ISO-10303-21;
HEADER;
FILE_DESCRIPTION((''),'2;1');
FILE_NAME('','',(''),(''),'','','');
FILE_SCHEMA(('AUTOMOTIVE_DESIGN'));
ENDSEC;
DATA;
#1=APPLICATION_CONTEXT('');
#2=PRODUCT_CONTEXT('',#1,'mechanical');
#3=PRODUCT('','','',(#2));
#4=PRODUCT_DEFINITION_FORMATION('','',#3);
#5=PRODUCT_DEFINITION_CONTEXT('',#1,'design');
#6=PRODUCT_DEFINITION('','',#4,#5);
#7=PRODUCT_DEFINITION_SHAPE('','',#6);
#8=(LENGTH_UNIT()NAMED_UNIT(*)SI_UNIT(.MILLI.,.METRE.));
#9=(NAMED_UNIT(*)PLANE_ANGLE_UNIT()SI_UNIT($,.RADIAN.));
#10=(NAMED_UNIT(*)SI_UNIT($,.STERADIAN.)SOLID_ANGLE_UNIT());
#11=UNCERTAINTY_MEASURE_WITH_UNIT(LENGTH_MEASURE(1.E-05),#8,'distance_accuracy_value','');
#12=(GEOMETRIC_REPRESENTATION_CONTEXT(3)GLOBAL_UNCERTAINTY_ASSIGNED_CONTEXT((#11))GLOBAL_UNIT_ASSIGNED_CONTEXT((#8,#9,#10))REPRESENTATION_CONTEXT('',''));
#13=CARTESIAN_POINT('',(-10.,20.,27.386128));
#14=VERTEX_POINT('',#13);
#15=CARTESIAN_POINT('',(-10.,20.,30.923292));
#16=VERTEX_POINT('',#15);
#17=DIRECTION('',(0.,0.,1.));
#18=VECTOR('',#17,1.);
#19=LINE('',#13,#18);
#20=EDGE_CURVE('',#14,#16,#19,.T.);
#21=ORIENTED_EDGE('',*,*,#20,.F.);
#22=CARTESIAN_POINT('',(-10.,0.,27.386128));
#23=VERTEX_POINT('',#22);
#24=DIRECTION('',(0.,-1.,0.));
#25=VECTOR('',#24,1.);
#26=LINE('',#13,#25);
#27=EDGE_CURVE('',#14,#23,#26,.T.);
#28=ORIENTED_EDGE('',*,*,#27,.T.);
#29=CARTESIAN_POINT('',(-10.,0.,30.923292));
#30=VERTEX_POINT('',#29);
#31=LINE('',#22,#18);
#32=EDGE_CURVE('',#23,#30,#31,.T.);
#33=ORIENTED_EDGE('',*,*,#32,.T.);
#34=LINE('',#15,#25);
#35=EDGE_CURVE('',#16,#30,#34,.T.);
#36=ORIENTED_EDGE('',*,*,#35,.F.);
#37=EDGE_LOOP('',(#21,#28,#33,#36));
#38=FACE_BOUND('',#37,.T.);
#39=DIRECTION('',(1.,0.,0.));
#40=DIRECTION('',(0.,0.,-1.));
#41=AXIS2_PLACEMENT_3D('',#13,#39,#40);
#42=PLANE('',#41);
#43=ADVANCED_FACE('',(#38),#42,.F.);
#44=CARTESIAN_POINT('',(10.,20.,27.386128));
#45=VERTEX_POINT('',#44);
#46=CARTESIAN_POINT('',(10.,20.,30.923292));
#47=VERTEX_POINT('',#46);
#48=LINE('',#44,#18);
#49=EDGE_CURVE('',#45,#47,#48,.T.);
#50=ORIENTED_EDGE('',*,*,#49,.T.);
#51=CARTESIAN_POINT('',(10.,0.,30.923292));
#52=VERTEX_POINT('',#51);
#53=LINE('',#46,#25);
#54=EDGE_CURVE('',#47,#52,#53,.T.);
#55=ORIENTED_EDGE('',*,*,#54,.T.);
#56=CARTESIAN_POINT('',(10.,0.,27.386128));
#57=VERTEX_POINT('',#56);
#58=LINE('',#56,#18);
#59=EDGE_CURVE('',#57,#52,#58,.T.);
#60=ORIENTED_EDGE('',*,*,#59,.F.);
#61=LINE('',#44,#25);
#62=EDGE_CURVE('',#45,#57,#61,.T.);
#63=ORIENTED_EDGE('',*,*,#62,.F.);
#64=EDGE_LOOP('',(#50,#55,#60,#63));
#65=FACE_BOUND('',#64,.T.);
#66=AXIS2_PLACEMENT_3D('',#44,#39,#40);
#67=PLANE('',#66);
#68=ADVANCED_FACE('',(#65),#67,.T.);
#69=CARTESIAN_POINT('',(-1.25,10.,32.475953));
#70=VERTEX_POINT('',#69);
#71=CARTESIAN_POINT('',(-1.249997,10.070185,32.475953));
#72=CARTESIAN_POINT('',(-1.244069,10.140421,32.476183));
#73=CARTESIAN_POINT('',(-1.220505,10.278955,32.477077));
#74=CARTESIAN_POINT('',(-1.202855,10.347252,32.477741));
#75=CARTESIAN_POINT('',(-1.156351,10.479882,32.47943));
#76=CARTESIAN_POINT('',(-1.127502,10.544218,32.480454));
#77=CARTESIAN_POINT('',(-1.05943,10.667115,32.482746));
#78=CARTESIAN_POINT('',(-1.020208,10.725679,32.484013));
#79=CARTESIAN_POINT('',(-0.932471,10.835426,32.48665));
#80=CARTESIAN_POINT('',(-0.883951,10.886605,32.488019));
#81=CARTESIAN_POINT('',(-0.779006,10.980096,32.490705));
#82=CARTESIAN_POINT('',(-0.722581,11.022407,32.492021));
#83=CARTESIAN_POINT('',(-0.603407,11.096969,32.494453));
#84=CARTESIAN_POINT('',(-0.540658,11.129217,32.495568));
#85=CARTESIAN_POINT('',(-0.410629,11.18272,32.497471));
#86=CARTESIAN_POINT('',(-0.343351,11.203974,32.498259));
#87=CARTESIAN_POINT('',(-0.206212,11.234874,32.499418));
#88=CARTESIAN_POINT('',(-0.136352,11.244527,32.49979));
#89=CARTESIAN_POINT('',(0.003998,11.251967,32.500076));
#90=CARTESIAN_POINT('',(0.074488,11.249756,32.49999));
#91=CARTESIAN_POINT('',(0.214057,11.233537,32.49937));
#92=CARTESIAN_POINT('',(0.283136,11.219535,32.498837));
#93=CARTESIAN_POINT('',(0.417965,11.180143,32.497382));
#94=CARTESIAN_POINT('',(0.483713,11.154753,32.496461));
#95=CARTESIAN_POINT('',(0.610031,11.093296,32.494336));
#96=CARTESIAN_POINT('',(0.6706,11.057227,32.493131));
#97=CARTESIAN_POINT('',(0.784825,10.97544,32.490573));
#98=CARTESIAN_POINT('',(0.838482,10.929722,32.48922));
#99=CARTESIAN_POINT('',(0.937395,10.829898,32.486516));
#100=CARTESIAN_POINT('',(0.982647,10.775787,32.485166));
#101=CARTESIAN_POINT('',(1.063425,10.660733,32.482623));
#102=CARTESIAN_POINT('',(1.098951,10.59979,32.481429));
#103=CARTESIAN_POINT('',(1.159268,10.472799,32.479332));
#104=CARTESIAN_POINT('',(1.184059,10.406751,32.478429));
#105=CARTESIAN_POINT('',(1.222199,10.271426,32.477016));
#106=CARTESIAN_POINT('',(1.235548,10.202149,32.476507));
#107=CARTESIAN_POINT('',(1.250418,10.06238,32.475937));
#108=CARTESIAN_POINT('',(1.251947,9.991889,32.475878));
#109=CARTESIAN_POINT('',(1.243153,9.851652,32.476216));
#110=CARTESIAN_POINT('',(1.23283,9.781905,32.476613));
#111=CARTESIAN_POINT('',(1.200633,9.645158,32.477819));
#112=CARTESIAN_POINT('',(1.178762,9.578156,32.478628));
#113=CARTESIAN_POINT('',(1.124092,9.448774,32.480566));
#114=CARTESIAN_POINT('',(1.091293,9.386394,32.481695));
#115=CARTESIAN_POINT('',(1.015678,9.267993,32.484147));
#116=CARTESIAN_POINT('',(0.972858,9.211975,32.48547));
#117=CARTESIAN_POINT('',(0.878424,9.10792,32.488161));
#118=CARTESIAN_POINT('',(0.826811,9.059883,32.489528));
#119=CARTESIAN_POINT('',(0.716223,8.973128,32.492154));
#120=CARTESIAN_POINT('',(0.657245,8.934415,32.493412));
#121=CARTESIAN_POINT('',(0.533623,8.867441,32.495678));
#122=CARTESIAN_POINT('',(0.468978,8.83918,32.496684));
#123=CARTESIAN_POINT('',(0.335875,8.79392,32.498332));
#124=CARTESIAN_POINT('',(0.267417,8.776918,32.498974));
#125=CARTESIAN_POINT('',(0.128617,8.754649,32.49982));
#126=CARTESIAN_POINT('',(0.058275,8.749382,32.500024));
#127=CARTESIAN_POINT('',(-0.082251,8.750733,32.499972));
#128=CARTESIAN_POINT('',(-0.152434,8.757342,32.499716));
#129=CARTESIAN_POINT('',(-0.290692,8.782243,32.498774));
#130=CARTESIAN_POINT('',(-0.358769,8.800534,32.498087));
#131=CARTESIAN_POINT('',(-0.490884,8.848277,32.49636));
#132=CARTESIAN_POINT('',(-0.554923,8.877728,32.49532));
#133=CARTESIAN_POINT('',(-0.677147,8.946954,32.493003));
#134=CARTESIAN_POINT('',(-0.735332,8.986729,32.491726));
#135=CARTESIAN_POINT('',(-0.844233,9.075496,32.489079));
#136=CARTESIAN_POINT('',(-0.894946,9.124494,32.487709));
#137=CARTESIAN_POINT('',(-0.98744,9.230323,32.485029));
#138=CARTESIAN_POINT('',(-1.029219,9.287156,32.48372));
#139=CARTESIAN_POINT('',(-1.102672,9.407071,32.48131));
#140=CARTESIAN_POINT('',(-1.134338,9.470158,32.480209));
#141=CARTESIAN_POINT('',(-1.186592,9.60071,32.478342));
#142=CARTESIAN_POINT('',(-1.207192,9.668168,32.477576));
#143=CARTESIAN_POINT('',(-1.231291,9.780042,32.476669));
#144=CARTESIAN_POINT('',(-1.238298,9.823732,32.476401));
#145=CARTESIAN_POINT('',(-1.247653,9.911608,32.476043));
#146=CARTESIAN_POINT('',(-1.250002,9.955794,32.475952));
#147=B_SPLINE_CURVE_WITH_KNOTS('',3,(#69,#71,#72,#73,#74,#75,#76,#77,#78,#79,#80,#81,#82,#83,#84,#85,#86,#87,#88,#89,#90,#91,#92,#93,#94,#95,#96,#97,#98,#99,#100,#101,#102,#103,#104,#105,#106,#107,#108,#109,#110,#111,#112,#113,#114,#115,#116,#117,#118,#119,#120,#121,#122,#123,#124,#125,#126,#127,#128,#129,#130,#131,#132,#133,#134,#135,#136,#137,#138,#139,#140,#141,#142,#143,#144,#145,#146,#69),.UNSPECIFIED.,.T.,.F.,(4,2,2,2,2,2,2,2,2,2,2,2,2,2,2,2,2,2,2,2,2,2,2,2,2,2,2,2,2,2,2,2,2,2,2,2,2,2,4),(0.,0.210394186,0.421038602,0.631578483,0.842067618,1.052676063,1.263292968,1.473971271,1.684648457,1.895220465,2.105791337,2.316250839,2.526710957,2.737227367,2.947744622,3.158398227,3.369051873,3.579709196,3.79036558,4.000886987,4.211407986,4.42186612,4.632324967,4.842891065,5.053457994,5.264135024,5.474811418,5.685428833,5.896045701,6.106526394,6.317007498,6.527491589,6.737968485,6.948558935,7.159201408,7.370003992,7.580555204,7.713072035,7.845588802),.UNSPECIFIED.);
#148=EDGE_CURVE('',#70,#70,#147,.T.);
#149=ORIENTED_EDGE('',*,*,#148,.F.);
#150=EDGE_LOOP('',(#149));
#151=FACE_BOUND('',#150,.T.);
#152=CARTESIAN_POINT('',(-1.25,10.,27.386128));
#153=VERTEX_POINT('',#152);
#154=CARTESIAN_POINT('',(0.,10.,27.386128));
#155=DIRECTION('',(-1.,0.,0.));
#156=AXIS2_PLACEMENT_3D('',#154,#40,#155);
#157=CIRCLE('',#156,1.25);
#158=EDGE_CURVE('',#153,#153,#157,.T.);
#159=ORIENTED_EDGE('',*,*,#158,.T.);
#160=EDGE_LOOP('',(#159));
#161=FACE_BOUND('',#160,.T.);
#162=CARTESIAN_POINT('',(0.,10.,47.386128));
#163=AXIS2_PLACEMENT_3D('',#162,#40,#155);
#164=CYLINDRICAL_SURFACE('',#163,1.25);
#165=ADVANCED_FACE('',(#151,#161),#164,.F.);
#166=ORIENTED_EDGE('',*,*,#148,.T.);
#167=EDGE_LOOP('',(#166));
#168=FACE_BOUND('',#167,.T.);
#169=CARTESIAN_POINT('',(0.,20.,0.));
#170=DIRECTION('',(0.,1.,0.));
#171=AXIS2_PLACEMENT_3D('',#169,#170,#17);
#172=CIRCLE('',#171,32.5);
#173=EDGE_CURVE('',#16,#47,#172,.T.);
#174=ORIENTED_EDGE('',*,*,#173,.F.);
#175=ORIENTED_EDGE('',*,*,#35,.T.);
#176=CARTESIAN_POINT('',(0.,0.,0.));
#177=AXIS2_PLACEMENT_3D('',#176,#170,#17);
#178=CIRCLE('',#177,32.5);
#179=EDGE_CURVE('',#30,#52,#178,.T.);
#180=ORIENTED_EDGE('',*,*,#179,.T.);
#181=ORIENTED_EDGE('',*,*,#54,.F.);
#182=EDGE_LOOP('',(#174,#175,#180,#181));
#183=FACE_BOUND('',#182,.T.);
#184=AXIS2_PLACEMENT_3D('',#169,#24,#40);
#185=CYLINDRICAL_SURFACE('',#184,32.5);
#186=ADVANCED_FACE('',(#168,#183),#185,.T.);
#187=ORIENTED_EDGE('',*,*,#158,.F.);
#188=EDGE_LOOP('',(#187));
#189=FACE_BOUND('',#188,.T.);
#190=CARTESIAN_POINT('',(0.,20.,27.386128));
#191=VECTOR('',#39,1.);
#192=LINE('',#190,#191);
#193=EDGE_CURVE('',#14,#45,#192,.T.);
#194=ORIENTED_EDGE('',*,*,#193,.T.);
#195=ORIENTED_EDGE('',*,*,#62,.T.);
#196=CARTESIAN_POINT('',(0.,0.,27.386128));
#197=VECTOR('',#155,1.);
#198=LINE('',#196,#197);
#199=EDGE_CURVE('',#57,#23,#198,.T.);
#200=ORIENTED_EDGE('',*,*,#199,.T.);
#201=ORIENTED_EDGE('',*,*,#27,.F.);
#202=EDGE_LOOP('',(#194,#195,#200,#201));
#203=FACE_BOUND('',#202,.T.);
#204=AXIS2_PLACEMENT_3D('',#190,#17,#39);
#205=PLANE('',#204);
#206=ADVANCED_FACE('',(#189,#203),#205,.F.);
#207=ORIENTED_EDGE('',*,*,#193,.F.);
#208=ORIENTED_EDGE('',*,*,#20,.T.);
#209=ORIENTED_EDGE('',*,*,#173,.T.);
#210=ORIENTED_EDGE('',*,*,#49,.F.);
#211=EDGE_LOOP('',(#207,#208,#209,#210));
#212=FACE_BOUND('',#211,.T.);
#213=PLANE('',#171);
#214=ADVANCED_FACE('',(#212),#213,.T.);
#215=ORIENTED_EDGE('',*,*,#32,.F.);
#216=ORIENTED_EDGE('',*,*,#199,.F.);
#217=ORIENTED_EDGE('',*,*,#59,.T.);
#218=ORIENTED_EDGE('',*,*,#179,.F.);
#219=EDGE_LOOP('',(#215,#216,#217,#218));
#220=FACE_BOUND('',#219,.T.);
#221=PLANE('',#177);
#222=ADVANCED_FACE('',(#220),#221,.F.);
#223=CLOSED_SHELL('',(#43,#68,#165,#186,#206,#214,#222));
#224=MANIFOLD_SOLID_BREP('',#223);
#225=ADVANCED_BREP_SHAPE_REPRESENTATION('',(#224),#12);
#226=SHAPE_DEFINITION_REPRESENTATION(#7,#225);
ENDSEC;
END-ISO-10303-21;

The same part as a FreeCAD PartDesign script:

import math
import FreeCAD as App
import Part
import Sketcher
from FreeCAD import Vector

doc = App.newDocument("Part")
params = doc.addObject("Spreadsheet::Sheet", "Params")
for row, (alias, value) in enumerate([
    ("sketch1_radius", "32.5 mm"),
    ("sketch1_width", "20 mm"),
    ("pad1_length", "20 mm"),
    ("sketch2_diameter", "2.5 mm"),
    ("pocket1_length", "20 mm"),
], start=1):
    params.set(f"A{row}", alias)
    params.set(f"B{row}", "=" + value)
    params.setAlias(f"B{row}", alias)

body = doc.addObject("PartDesign::Body", "Body")

sketch1 = body.newObject("Sketcher::SketchObject", "Sketch")
sketch1.AttachmentSupport = (doc.getObject("XZ_Plane"), [""])
sketch1.MapMode = "FlatFace"
sketch1.addGeometry(Part.LineSegment(Vector(-10, 27.4, 0), Vector(-10, 30.9, 0)), False)
sketch1.addGeometry(Part.ArcOfCircle(Part.Circle(Vector(0, 0, 0), Vector(0, 0, 1), 32.5), math.radians(72), math.radians(108)), False)
sketch1.addGeometry(Part.LineSegment(Vector(10, 30.9, 0), Vector(10, 27.4, 0)), False)
sketch1.addGeometry(Part.LineSegment(Vector(10, 27.4, 0), Vector(-10, 27.4, 0)), False)
sketch1.addConstraint(Sketcher.Constraint("Coincident", 0, 2, 1, 2))
sketch1.addConstraint(Sketcher.Constraint("Coincident", 1, 1, 2, 1))
sketch1.addConstraint(Sketcher.Constraint("Coincident", 2, 2, 3, 1))
sketch1.addConstraint(Sketcher.Constraint("Coincident", 3, 2, 0, 1))
sketch1.addConstraint(Sketcher.Constraint("Vertical", 0))
sketch1.addConstraint(Sketcher.Constraint("Vertical", 2))
sketch1.addConstraint(Sketcher.Constraint("Horizontal", 3))
sketch1.addConstraint(Sketcher.Constraint("Coincident", 1, 3, -1, 1))
sketch1.addConstraint(Sketcher.Constraint("Horizontal", 0, 2, 1, 1))
sketch1.addConstraint(Sketcher.Constraint("Radius", 1, 32.5))
sketch1.addConstraint(Sketcher.Constraint("DistanceX", 3, 2, 3, 1, 20.0))
sketch1.addConstraint(Sketcher.Constraint("DistanceY", 0, 1, 0, 2, 3.537164))
sketch1.setExpression("Constraints[9]", "Params.sketch1_radius")
sketch1.setExpression("Constraints[10]", "Params.sketch1_width")
pad1 = body.newObject("PartDesign::Pad", "Pad")
pad1.Profile = sketch1
pad1.setExpression("Length", "Params.pad1_length")
pad1.Reversed = True

sketch2 = body.newObject("Sketcher::SketchObject", "Sketch001")
sketch2.AttachmentSupport = (doc.getObject("XY_Plane"), [""])
sketch2.MapMode = "FlatFace"
sketch2.AttachmentOffset = App.Placement(Vector(0, 0, 27.386128), App.Rotation())
sketch2.addGeometry(Part.Circle(Vector(0, 10, 0), Vector(0, 0, 1), 1.2), False)
sketch2.addConstraint(Sketcher.Constraint("PointOnObject", 0, 3, -2))
sketch2.addConstraint(Sketcher.Constraint("Diameter", 0, 2.5))
sketch2.addConstraint(Sketcher.Constraint("DistanceY", -1, 1, 0, 3, 10.0))
sketch2.setExpression("Constraints[1]", "Params.sketch2_diameter")
pocket1 = body.newObject("PartDesign::Pocket", "Pocket")
pocket1.Profile = sketch2
pocket1.setExpression("Length", "Params.pocket1_length")
pocket1.Reversed = True

doc.recompute()
